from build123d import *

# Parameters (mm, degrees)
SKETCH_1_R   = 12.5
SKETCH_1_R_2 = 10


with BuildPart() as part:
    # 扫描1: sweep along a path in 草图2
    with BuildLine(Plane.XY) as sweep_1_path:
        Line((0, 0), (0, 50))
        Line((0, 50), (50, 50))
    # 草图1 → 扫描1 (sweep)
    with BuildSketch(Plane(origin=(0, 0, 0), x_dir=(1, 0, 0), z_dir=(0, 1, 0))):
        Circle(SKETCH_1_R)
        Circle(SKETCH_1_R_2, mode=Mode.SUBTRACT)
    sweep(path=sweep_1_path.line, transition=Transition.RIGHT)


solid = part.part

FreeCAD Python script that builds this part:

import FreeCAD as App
import Part
import Sketcher
from FreeCAD import Vector

doc = App.newDocument("Part")
body = doc.addObject("PartDesign::Body", "Body")

sketch1 = body.newObject("Sketcher::SketchObject", "Sketch")
sketch1.AttachmentSupport = (doc.getObject("XZ_Plane"), [""])
sketch1.MapMode = "FlatFace"
sketch1.addGeometry([
    Part.Circle(Vector(0, 0, 0), Vector(0, 0, 1), 12.5),
    Part.Circle(Vector(0, 0, 0), Vector(0, 0, 1), 10),
], False)
sketch1.addConstraint([
    Sketcher.Constraint("Coincident", 0, 3, -1, 1),
    Sketcher.Constraint("Coincident", 1, 3, -1, 1),
    Sketcher.Constraint("Diameter", 0, 25.0),
    Sketcher.Constraint("Diameter", 1, 20.0),
])

sketch2 = body.newObject("Sketcher::SketchObject", "Sketch001")
sketch2.AttachmentSupport = (doc.getObject("XY_Plane"), [""])
sketch2.MapMode = "FlatFace"
sketch2.addGeometry([
    Part.LineSegment(Vector(0, 0, 0), Vector(0, 50, 0)),
    Part.LineSegment(Vector(0, 50, 0), Vector(50, 50, 0)),
], False)
sketch2.addConstraint([
    Sketcher.Constraint("Coincident", 0, 2, 1, 1),
    Sketcher.Constraint("Vertical", 0),
    Sketcher.Constraint("Horizontal", 1),
    Sketcher.Constraint("Coincident", 0, 1, -1, 1),
    Sketcher.Constraint("Equal", 1, 0),
    Sketcher.Constraint("DistanceX", 1, 1, 1, 2, 50.0),
])
doc.recompute()

additivepipe = body.newObject("PartDesign::AdditivePipe", "AdditivePipe")
additivepipe.Profile = sketch1
additivepipe.Spine = (sketch2, ["Edge1", "Edge2"])
additivepipe.Transition = "Right corner"

doc.recompute()
